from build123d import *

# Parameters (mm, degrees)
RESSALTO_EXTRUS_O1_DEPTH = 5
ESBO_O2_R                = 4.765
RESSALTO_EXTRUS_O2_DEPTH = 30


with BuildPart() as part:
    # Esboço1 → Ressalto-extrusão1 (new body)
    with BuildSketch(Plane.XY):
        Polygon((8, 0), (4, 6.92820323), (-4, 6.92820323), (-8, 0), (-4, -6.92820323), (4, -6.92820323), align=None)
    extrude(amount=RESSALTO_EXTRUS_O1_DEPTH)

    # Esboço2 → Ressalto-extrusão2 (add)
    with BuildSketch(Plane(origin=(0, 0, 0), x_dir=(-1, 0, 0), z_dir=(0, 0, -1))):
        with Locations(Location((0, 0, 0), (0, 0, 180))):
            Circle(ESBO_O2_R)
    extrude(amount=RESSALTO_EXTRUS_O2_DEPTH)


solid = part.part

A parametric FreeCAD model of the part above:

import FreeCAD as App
import Part
import Sketcher
from FreeCAD import Vector
Q = App.Units.Quantity

doc = App.newDocument("Part")
params = doc.addObject("Spreadsheet::Sheet", "Params")
for row, (alias, value) in enumerate([
    ("sketch1_width", "8 mm"),
    ("sketch1_length", "8 mm"),
    ("pad1_length", "5 mm"),
    ("sketch2_diameter", "9.53 mm"),
    ("pad2_length", "30 mm"),
], start=1):
    params.set(f"A{row}", alias)
    params.set(f"B{row}", "=" + value)
    params.setAlias(f"B{row}", alias)

body = doc.addObject("PartDesign::Body", "Body")

sketch1 = body.newObject("Sketcher::SketchObject", "Sketch")
sketch1.AttachmentSupport = (doc.getObject("XY_Plane"), [""])
sketch1.MapMode = "FlatFace"
sketch1.addGeometry([
    Part.LineSegment(Vector(8, 0, 0), Vector(4, 6.928203, 0)),
    Part.LineSegment(Vector(4, 6.928203, 0), Vector(-4, 6.928203, 0)),
    Part.LineSegment(Vector(-4, 6.928203, 0), Vector(-8, 0, 0)),
    Part.LineSegment(Vector(-8, 0, 0), Vector(-4, -6.928203, 0)),
    Part.LineSegment(Vector(-4, -6.928203, 0), Vector(4, -6.928203, 0)),
    Part.LineSegment(Vector(4, -6.928203, 0), Vector(8, 0, 0)),
], False)
sketch1.addConstraint([
    Sketcher.Constraint("Coincident", 0, 2, 1, 1),
    Sketcher.Constraint("Coincident", 1, 2, 2, 1),
    Sketcher.Constraint("Coincident", 2, 2, 3, 1),
    Sketcher.Constraint("Coincident", 3, 2, 4, 1),
    Sketcher.Constraint("Coincident", 4, 2, 5, 1),
    Sketcher.Constraint("Coincident", 5, 2, 0, 1),
    Sketcher.Constraint("Horizontal", 1),
    Sketcher.Constraint("Horizontal", 4),
    Sketcher.Constraint("Symmetric", 0, 2, 3, 2, -1, 1),
    Sketcher.Constraint("Symmetric", 2, 2, 5, 2, -1, 1),
    Sketcher.Constraint("PointOnObject", 2, 2, -1),
    Sketcher.Constraint("Parallel", 2, 5),
    Sketcher.Constraint("Vertical", 1, 2, 3, 2),
    Sketcher.Constraint("DistanceX", 1, 2, 1, 1, 8.0),
    Sketcher.Constraint("Angle", 0, Q("120 deg")),
    Sketcher.Constraint("Distance", 0, 8.0),
])
sketch1.setExpression("Constraints[13]", "Params.sketch1_width")
sketch1.setExpression("Constraints[15]", "Params.sketch1_length")
pad1 = body.newObject("PartDesign::Pad", "Pad")
pad1.Profile = sketch1
pad1.setExpression("Length", "Params.pad1_length")

sketch2 = body.newObject("Sketcher::SketchObject", "Sketch001")
sketch2.AttachmentSupport = (doc.getObject("XY_Plane"), [""])
sketch2.MapMode = "FlatFace"
sketch2.addGeometry(Part.Circle(Vector(0, 0, 0), Vector(0, 0, 1), 4.765), False)
sketch2.addConstraint([
    Sketcher.Constraint("Coincident", 0, 3, -1, 1),
    Sketcher.Constraint("Diameter", 0, 9.53),
])
sketch2.setExpression("Constraints[1]", "Params.sketch2_diameter")
pad2 = body.newObject("PartDesign::Pad", "Pad001")
pad2.Profile = sketch2
pad2.setExpression("Length", "Params.pad2_length")
pad2.Reversed = True

doc.recompute()
